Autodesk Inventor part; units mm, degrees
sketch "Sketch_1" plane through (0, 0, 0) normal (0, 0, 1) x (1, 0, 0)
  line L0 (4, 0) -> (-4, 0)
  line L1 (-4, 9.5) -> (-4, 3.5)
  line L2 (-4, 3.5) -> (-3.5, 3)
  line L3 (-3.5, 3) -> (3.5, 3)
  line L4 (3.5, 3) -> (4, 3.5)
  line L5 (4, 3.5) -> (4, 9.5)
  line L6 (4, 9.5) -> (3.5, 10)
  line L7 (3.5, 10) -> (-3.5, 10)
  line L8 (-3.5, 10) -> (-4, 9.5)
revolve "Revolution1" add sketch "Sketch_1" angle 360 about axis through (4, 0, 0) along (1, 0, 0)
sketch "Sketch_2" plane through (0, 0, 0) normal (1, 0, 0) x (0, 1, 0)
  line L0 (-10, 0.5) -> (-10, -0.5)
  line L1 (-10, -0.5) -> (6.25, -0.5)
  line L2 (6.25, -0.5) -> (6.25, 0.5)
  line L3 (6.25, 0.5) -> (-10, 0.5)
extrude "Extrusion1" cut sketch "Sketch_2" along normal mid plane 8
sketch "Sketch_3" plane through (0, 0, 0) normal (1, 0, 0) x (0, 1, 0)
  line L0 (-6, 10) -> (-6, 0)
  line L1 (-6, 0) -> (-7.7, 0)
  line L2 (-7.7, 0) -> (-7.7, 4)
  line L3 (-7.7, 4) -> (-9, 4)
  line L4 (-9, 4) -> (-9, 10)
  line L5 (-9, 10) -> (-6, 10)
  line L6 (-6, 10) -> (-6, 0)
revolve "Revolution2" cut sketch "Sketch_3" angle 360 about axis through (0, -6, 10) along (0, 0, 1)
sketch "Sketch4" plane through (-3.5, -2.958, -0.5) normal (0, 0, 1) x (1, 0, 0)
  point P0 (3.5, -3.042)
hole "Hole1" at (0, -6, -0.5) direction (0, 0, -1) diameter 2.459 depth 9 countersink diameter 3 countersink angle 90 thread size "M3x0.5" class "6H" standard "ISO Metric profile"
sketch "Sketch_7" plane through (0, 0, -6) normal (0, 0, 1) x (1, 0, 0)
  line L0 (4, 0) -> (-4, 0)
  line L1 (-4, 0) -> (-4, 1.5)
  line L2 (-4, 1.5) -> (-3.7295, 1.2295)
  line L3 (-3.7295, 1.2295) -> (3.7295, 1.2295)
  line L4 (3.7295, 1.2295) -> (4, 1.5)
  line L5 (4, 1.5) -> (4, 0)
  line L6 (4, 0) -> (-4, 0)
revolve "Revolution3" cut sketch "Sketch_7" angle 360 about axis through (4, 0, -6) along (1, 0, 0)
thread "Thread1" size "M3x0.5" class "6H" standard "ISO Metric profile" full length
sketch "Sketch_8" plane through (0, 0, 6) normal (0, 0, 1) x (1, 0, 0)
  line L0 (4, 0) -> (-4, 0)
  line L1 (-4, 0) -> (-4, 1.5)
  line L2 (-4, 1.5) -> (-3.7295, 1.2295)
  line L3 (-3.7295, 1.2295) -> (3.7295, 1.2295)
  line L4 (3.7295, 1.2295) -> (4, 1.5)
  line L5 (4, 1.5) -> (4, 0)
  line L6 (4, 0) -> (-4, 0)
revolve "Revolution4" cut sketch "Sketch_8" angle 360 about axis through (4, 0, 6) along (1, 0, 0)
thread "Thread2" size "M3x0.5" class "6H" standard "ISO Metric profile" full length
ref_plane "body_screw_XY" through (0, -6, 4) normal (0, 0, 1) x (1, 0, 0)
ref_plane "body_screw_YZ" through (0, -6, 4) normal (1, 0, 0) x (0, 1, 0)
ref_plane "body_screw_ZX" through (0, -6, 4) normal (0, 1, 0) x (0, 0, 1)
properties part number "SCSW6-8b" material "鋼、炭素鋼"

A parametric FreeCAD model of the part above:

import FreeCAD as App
import Part
import Sketcher

V = App.Vector

doc = App.newDocument("Part")
params = doc.addObject("Spreadsheet::Sheet", "Params")
for row, (alias, value) in enumerate([
    ("sketch1_width", "7 mm"),
    ("sketch1_height", "6 mm"),
    ("revolution_angle", "360 deg"),
    ("sketch2_height", "1 mm"),
    ("sketch2_width", "16.25 mm"),
    ("pocket1_length", "8 mm"),
    ("sketch3_width", "3 mm"),
    ("sketch3_height", "10 mm"),
    ("sketch3_height2", "6 mm"),
    ("sketch3_width2", "1.3 mm"),
    ("groove_angle", "360 deg"),
    ("hole_diameter", "2.459 mm"),
    ("hole_depth", "9 mm"),
    ("hole_csink_diameter", "3 mm"),
    ("sketch5_width", "8 mm"),
    ("sketch5_height", "1.5 mm"),
    ("groove2_angle", "360 deg"),
    ("sketch6_width", "8 mm"),
    ("sketch6_height", "1.5 mm"),
    ("groove3_angle", "360 deg"),
], start=1):
    params.set(f"A{row}", alias)
    params.set(f"B{row}", "=" + value)
    params.setAlias(f"B{row}", alias)

body = doc.addObject("PartDesign::Body", "Body")

# Sketch on XY plane
sketch1 = doc.addObject("Sketcher::SketchObject", "Sketch")
body.addObject(sketch1)
sketch1.AttachmentSupport = (doc.XY_Plane, [""])
sketch1.MapMode = "FlatFace"
sketch1.addGeometry([
    Part.LineSegment(V(-3.5, 10, 0), V(-4, 9.5, 0)),  # 0
    Part.LineSegment(V(-4, 9.5, 0), V(-4, 3.5, 0)),  # 1
    Part.LineSegment(V(-4, 3.5, 0), V(-3.5, 3, 0)),  # 2
    Part.LineSegment(V(-3.5, 3, 0), V(3.5, 3, 0)),  # 3
    Part.LineSegment(V(3.5, 3, 0), V(4, 3.5, 0)),  # 4
    Part.LineSegment(V(4, 3.5, 0), V(4, 9.5, 0)),  # 5
    Part.LineSegment(V(4, 9.5, 0), V(3.5, 10, 0)),  # 6
    Part.LineSegment(V(3.5, 10, 0), V(-3.5, 10, 0)),  # 7
], False)
sketch1.addConstraint([
    Sketcher.Constraint("Coincident", 0, 2, 1, 1),
    Sketcher.Constraint("Coincident", 1, 2, 2, 1),
    Sketcher.Constraint("Coincident", 2, 2, 3, 1),
    Sketcher.Constraint("Coincident", 3, 2, 4, 1),
    Sketcher.Constraint("Coincident", 4, 2, 5, 1),
    Sketcher.Constraint("Coincident", 5, 2, 6, 1),
    Sketcher.Constraint("Coincident", 6, 2, 7, 1),
    Sketcher.Constraint("Coincident", 7, 2, 0, 1),
    Sketcher.Constraint("Vertical", 1),
    Sketcher.Constraint("Horizontal", 3),
    Sketcher.Constraint("Vertical", 5),
    Sketcher.Constraint("Horizontal", 7),
    Sketcher.Constraint("Symmetric", 1, 2, 4, 2, -2),
    Sketcher.Constraint("Perpendicular", 0, 2),
    Sketcher.Constraint("Perpendicular", 2, 4),
    Sketcher.Constraint("Perpendicular", 4, 6),
    Sketcher.Constraint("Horizontal", 0, 2, 5, 2),
    Sketcher.Constraint("Vertical", 3, 2, 6, 2),
    Sketcher.Constraint("Vertical", 2, 2, 7, 2),
    Sketcher.Constraint("DistanceX", 3, 1, 3, 2, 7.0),
    Sketcher.Constraint("DistanceY", 1, 2, 1, 1, 6.0),
    Sketcher.Constraint("DistanceX", 0, 2, -1, 1, 4.0),
    Sketcher.Constraint("DistanceY", -1, 1, 2, 2, 3.0),
])
sketch1.setExpression("Constraints[19]", "Params.sketch1_width")
sketch1.setExpression("Constraints[20]", "Params.sketch1_height")
revolution = doc.addObject("PartDesign::Revolution", "Revolution")
body.addObject(revolution)
revolution.Profile = sketch1
revolution.ReferenceAxis = (sketch1, ["H_Axis"])
revolution.setExpression("Angle", "Params.revolution_angle")

# Sketch on YZ plane
sketch2 = doc.addObject("Sketcher::SketchObject", "Sketch001")
body.addObject(sketch2)
sketch2.AttachmentSupport = (doc.YZ_Plane, [""])
sketch2.MapMode = "FlatFace"
sketch2.addGeometry([
    Part.LineSegment(V(6.25, 0.5, 0), V(-10, 0.5, 0)),
    Part.LineSegment(V(-10, 0.5, 0), V(-10, -0.5, 0)),
    Part.LineSegment(V(-10, -0.5, 0), V(6.25, -0.5, 0)),
    Part.LineSegment(V(6.25, -0.5, 0), V(6.25, 0.5, 0)),
], False)
sketch2.addConstraint([
    Sketcher.Constraint("Coincident", 0, 2, 1, 1),
    Sketcher.Constraint("Coincident", 1, 2, 2, 1),
    Sketcher.Constraint("Coincident", 2, 2, 3, 1),
    Sketcher.Constraint("Coincident", 3, 2, 0, 1),
    Sketcher.Constraint("Horizontal", 0),
    Sketcher.Constraint("Vertical", 1),
    Sketcher.Constraint("Horizontal", 2),
    Sketcher.Constraint("Vertical", 3),
    Sketcher.Constraint("DistanceY", 1, 2, 1, 1, 1.0),
    Sketcher.Constraint("DistanceX", 0, 2, -1, 1, 10.0),
    Sketcher.Constraint("DistanceX", 0, 2, 0, 1, 16.25),
    Sketcher.Constraint("DistanceY", -1, 1, 0, 2, 0.5),
])
sketch2.setExpression("Constraints[8]", "Params.sketch2_height")
sketch2.setExpression("Constraints[10]", "Params.sketch2_width")
pocket1 = doc.addObject("PartDesign::Pocket", "Pocket")
body.addObject(pocket1)
pocket1.Profile = sketch2
pocket1.setExpression("Length", "Params.pocket1_length")
pocket1.Midplane = True

# Sketch on YZ plane
sketch3 = doc.addObject("Sketcher::SketchObject", "Sketch002")
body.addObject(sketch3)
sketch3.AttachmentSupport = (doc.YZ_Plane, [""])
sketch3.MapMode = "FlatFace"
sketch3.addGeometry([
    Part.LineSegment(V(-6, 0, 0), V(-6, 10, 0)),  # 0
    Part.LineSegment(V(-6, 10, 0), V(-9, 10, 0)),  # 1
    Part.LineSegment(V(-9, 10, 0), V(-9, 4, 0)),  # 2
    Part.LineSegment(V(-9, 4, 0), V(-7.7, 4, 0)),  # 3
    Part.LineSegment(V(-7.7, 4, 0), V(-7.7, 0, 0)),  # 4
    Part.LineSegment(V(-7.7, 0, 0), V(-6, 0, 0)),  # 5
], False)
sketch3.addGeometry(Part.LineSegment(V(-6, 0, 0), V(-6, 10, 0)), True)  # axis
sketch3.addConstraint([
    Sketcher.Constraint("Coincident", 0, 2, 1, 1),
    Sketcher.Constraint("Coincident", 1, 2, 2, 1),
    Sketcher.Constraint("Coincident", 2, 2, 3, 1),
    Sketcher.Constraint("Coincident", 3, 2, 4, 1),
    Sketcher.Constraint("Coincident", 4, 2, 5, 1),
    Sketcher.Constraint("Coincident", 5, 2, 0, 1),
    Sketcher.Constraint("Vertical", 0),
    Sketcher.Constraint("Horizontal", 1),
    Sketcher.Constraint("Vertical", 2),
    Sketcher.Constraint("Horizontal", 3),
    Sketcher.Constraint("Vertical", 4),
    Sketcher.Constraint("Horizontal", 5),
    Sketcher.Constraint("Vertical", 6),
    Sketcher.Constraint("Coincident", 6, 1, 5, 2),
    Sketcher.Constraint("PointOnObject", 4, 2, -1),
    Sketcher.Constraint("Horizontal", 1, 2, 6, 2),
    Sketcher.Constraint("DistanceX", 1, 2, 1, 1, 3.0),
    Sketcher.Constraint("DistanceY", 0, 1, 0, 2, 10.0),
    Sketcher.Constraint("DistanceY", 2, 2, 2, 1, 6.0),
    Sketcher.Constraint("DistanceX", 3, 1, 3, 2, 1.3),
    Sketcher.Constraint("DistanceX", 0, 2, -1, 1, 6.0),
])
sketch3.setExpression("Constraints[16]", "Params.sketch3_width")
sketch3.setExpression("Constraints[17]", "Params.sketch3_height")
sketch3.setExpression("Constraints[18]", "Params.sketch3_height2")
sketch3.setExpression("Constraints[19]", "Params.sketch3_width2")
groove = doc.addObject("PartDesign::Groove", "Groove")
body.addObject(groove)
groove.Profile = sketch3
groove.ReferenceAxis = (sketch3, ["Axis0"])
groove.setExpression("Angle", "Params.groove_angle")

# Sketch on XY plane
sketch4 = doc.addObject("Sketcher::SketchObject", "Sketch003")
body.addObject(sketch4)
sketch4.AttachmentSupport = (doc.XY_Plane, [""])
sketch4.MapMode = "FlatFace"
sketch4.AttachmentOffset = App.Placement(V(0, 0, -0.5), App.Rotation())
sketch4.addGeometry(Part.Circle(V(0, -6, 0), V(0, 0, 1), 1.2295), False)
sketch4.addConstraint([
    Sketcher.Constraint("PointOnObject", 0, 3, -2),
    Sketcher.Constraint("Diameter", 0, 2.459),
    Sketcher.Constraint("DistanceY", 0, 3, -1, 1, 6.0),
])
doc.recompute()
hole = doc.addObject("PartDesign::Hole", "Hole")
body.addObject(hole)
hole.Profile = sketch4
hole.ThreadType = "None"
hole.setExpression("Diameter", "Params.hole_diameter")
hole.DepthType = "Dimension"
hole.setExpression("Depth", "Params.hole_depth")
hole.DrillPoint = "Flat"
hole.HoleCutType = "Countersink"
hole.setExpression("HoleCutDiameter", "Params.hole_csink_diameter")
hole.HoleCutCountersinkAngle = 90

# Sketch on XY plane
sketch5 = doc.addObject("Sketcher::SketchObject", "Sketch004")
body.addObject(sketch5)
sketch5.AttachmentSupport = (doc.XY_Plane, [""])
sketch5.MapMode = "FlatFace"
sketch5.AttachmentOffset = App.Placement(V(0, 0, -6), App.Rotation())
sketch5.addGeometry([
    Part.LineSegment(V(-4, 0, 0), V(4, 0, 0)),  # 0
    Part.LineSegment(V(4, 0, 0), V(4, 1.5, 0)),  # 1
    Part.LineSegment(V(4, 1.5, 0), V(3.7295, 1.2295, 0)),  # 2
    Part.LineSegment(V(3.7295, 1.2295, 0), V(-3.7295, 1.2295, 0)),  # 3
    Part.LineSegment(V(-3.7295, 1.2295, 0), V(-4, 1.5, 0)),  # 4
    Part.LineSegment(V(-4, 1.5, 0), V(-4, 0, 0)),  # 5
], False)
sketch5.addConstraint([
    Sketcher.Constraint("Coincident", 0, 2, 1, 1),
    Sketcher.Constraint("Coincident", 1, 2, 2, 1),
    Sketcher.Constraint("Coincident", 2, 2, 3, 1),
    Sketcher.Constraint("Coincident", 3, 2, 4, 1),
    Sketcher.Constraint("Coincident", 4, 2, 5, 1),
    Sketcher.Constraint("Coincident", 5, 2, 0, 1),
    Sketcher.Constraint("Horizontal", 0),
    Sketcher.Constraint("Vertical", 1),
    Sketcher.Constraint("Horizontal", 3),
    Sketcher.Constraint("Vertical", 5),
    Sketcher.Constraint("Symmetric", 0, 2, 5, 2, -1, 1),
    Sketcher.Constraint("Perpendicular", 2, 4),
    Sketcher.Constraint("Horizontal", 1, 2, 4, 2),
    Sketcher.Constraint("Equal", 2, 4),
    Sketcher.Constraint("DistanceX", 0, 1, 0, 2, 8.0),
    Sketcher.Constraint("DistanceY", 1, 1, 1, 2, 1.5),
    Sketcher.Constraint("DistanceX", 3, 2, 3, 1, 7.459),
])
sketch5.setExpression("Constraints[14]", "Params.sketch5_width")
sketch5.setExpression("Constraints[15]", "Params.sketch5_height")
groove2 = doc.addObject("PartDesign::Groove", "Groove001")
body.addObject(groove2)
groove2.Profile = sketch5
groove2.ReferenceAxis = (sketch5, ["H_Axis"])
groove2.setExpression("Angle", "Params.groove2_angle")

# Sketch on XY plane
sketch6 = doc.addObject("Sketcher::SketchObject", "Sketch005")
body.addObject(sketch6)
sketch6.AttachmentSupport = (doc.XY_Plane, [""])
sketch6.MapMode = "FlatFace"
sketch6.AttachmentOffset = App.Placement(V(0, 0, 6), App.Rotation())
sketch6.addGeometry([
    Part.LineSegment(V(-4, 0, 0), V(4, 0, 0)),  # 0
    Part.LineSegment(V(4, 0, 0), V(4, 1.5, 0)),  # 1
    Part.LineSegment(V(4, 1.5, 0), V(3.7295, 1.2295, 0)),  # 2
    Part.LineSegment(V(3.7295, 1.2295, 0), V(-3.7295, 1.2295, 0)),  # 3
    Part.LineSegment(V(-3.7295, 1.2295, 0), V(-4, 1.5, 0)),  # 4
    Part.LineSegment(V(-4, 1.5, 0), V(-4, 0, 0)),  # 5
], False)
sketch6.addConstraint([
    Sketcher.Constraint("Coincident", 0, 2, 1, 1),
    Sketcher.Constraint("Coincident", 1, 2, 2, 1),
    Sketcher.Constraint("Coincident", 2, 2, 3, 1),
    Sketcher.Constraint("Coincident", 3, 2, 4, 1),
    Sketcher.Constraint("Coincident", 4, 2, 5, 1),
    Sketcher.Constraint("Coincident", 5, 2, 0, 1),
    Sketcher.Constraint("Horizontal", 0),
    Sketcher.Constraint("Vertical", 1),
    Sketcher.Constraint("Horizontal", 3),
    Sketcher.Constraint("Vertical", 5),
    Sketcher.Constraint("Symmetric", 0, 2, 5, 2, -1, 1),
    Sketcher.Constraint("Perpendicular", 2, 4),
    Sketcher.Constraint("Horizontal", 1, 2, 4, 2),
    Sketcher.Constraint("Equal", 2, 4),
    Sketcher.Constraint("DistanceX", 0, 1, 0, 2, 8.0),
    Sketcher.Constraint("DistanceY", 1, 1, 1, 2, 1.5),
    Sketcher.Constraint("DistanceX", 3, 2, 3, 1, 7.459),
])
sketch6.setExpression("Constraints[14]", "Params.sketch6_width")
sketch6.setExpression("Constraints[15]", "Params.sketch6_height")
groove3 = doc.addObject("PartDesign::Groove", "Groove002")
body.addObject(groove3)
groove3.Profile = sketch6
groove3.ReferenceAxis = (sketch6, ["H_Axis"])
groove3.setExpression("Angle", "Params.groove3_angle")

doc.recompute()
